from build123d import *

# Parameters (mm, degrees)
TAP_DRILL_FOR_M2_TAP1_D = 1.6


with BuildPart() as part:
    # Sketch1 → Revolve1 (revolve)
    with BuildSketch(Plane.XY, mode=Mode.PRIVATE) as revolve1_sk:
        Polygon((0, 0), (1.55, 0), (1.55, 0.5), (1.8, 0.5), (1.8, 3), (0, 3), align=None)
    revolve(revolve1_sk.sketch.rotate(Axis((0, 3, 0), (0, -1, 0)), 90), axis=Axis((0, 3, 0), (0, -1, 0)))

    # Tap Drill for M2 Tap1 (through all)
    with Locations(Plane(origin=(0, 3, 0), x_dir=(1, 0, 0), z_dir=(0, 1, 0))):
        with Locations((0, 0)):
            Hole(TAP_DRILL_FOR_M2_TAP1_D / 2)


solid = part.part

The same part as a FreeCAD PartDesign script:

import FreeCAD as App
import Part
import Sketcher

V = App.Vector

doc = App.newDocument("Part")
body = doc.addObject("PartDesign::Body", "Body")

# Sketch on XY plane
sketch1 = body.newObject("Sketcher::SketchObject", "Sketch")
sketch1.AttachmentSupport = (doc.getObject("XY_Plane"), [""])
sketch1.MapMode = "FlatFace"
sketch1.addGeometry([
    Part.LineSegment(V(0, 0, 0), V(1.55, 0, 0)),  # 0
    Part.LineSegment(V(1.55, 0, 0), V(1.55, 0.5, 0)),  # 1
    Part.LineSegment(V(1.55, 0.5, 0), V(1.8, 0.5, 0)),  # 2
    Part.LineSegment(V(1.8, 0.5, 0), V(1.8, 3, 0)),  # 3
    Part.LineSegment(V(1.8, 3, 0), V(0, 3, 0)),  # 4
    Part.LineSegment(V(0, 3, 0), V(0, 0, 0)),  # 5
], False)
sketch1.addConstraint([
    Sketcher.Constraint("Coincident", 0, 2, 1, 1),
    Sketcher.Constraint("Coincident", 1, 2, 2, 1),
    Sketcher.Constraint("Coincident", 2, 2, 3, 1),
    Sketcher.Constraint("Coincident", 3, 2, 4, 1),
    Sketcher.Constraint("Coincident", 4, 2, 5, 1),
    Sketcher.Constraint("Coincident", 5, 2, 0, 1),
    Sketcher.Constraint("Horizontal", 0),
    Sketcher.Constraint("Vertical", 1),
    Sketcher.Constraint("Horizontal", 2),
    Sketcher.Constraint("Vertical", 3),
    Sketcher.Constraint("Horizontal", 4),
    Sketcher.Constraint("Vertical", 5),
    Sketcher.Constraint("Coincident", 5, 2, -1, 1),
    Sketcher.Constraint("DistanceY", 5, 2, 5, 1, 3.0),
    Sketcher.Constraint("DistanceX", 4, 2, 4, 1, 1.8),
    Sketcher.Constraint("DistanceY", 1, 1, 1, 2, 0.5),
    Sketcher.Constraint("DistanceX", 0, 1, 0, 2, 1.55),
])
revolution = body.newObject("PartDesign::Revolution", "Revolution")
revolution.Profile = sketch1
revolution.ReferenceAxis = (sketch1, ["V_Axis"])
revolution.Angle = 360

# Sketch on XZ plane
sketch2 = body.newObject("Sketcher::SketchObject", "Sketch001")
sketch2.AttachmentSupport = (doc.getObject("XZ_Plane"), [""])
sketch2.MapMode = "FlatFace"
sketch2.AttachmentOffset = App.Placement(V(0, 0, -3), App.Rotation())
sketch2.addGeometry(Part.Circle(V(0, 0, 0), V(0, 0, 1), 0.8), False)
sketch2.addConstraint([
    Sketcher.Constraint("Coincident", 0, 3, -1, 1),
    Sketcher.Constraint("Diameter", 0, 1.6),
])
doc.recompute()
hole = body.newObject("PartDesign::Hole", "Hole")
hole.Profile = sketch2
hole.ThreadType = "None"
hole.Diameter = 1.6
hole.DepthType = "ThroughAll"
hole.Reversed = True

doc.recompute()
